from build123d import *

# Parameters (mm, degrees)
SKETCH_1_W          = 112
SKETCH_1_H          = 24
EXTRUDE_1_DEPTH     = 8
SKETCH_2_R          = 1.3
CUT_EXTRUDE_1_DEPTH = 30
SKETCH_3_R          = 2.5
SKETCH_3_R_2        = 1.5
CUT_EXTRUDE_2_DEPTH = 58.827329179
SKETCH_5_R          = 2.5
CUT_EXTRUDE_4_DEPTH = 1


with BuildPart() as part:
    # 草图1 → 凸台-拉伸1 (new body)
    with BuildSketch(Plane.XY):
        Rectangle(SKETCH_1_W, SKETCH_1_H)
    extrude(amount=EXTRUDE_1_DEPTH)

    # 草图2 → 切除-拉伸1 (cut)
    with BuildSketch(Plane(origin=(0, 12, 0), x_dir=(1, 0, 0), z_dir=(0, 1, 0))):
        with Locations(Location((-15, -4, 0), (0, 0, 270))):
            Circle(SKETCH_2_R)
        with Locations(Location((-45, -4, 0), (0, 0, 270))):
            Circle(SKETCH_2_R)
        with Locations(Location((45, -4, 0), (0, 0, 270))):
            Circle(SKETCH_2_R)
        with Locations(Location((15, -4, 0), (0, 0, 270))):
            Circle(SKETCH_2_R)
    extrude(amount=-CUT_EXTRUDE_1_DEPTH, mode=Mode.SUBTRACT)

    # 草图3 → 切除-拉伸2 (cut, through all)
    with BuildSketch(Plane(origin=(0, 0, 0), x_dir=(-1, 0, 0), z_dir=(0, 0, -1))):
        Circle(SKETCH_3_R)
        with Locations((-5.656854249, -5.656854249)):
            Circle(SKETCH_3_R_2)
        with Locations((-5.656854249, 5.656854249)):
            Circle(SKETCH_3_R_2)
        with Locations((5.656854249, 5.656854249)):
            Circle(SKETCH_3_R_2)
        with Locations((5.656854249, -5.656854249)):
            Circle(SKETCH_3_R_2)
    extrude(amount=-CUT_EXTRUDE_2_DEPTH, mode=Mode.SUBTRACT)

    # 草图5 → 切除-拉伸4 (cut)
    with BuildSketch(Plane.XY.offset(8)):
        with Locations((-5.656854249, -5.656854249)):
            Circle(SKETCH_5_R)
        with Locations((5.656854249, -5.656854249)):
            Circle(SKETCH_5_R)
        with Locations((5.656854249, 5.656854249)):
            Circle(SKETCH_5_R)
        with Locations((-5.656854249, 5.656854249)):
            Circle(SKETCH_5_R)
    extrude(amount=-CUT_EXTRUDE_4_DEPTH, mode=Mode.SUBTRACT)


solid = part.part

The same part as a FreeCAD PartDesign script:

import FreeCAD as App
import Part
import Sketcher

V = App.Vector
Q = App.Units.Quantity


def add_polygon(sketch, points):
    """Adds a closed chain of lines whose ends are joined by coincident constraints."""
    first, n = sketch.GeometryCount, len(points)
    for a, b in zip(points, points[1:] + points[:1]):
        sketch.addGeometry(Part.LineSegment(App.Vector(*a, 0), App.Vector(*b, 0)), False)
    for i in range(n):
        sketch.addConstraint(Sketcher.Constraint("Coincident", first + i, 2, first + (i + 1) % n, 1))

doc = App.newDocument("Part")
params = doc.addObject("Spreadsheet::Sheet", "Params")
for row, (alias, value) in enumerate([
    ("sketch1_width", "112 mm"),
    ("sketch1_height", "24 mm"),
    ("pad1_length", "8 mm"),
    ("sketch2_diameter", "2.6 mm"),
    ("pocket1_length", "30 mm"),
    ("sketch3_diameter", "5 mm"),
    ("sketch3_diameter2", "3 mm"),
    ("sketch4_diameter", "5 mm"),
    ("pocket3_length", "1 mm"),
], start=1):
    params.set(f"A{row}", alias)
    params.set(f"B{row}", "=" + value)
    params.setAlias(f"B{row}", alias)

body = doc.addObject("PartDesign::Body", "Body")

sketch1 = doc.addObject("Sketcher::SketchObject", "Sketch")
body.addObject(sketch1)
sketch1.AttachmentSupport = (doc.XY_Plane, [""])
sketch1.MapMode = "FlatFace"
add_polygon(sketch1, [(-56, 12), (-56, -12), (56, -12), (56, 12)])
sketch1.addConstraint(Sketcher.Constraint("Vertical", 0))
sketch1.addConstraint(Sketcher.Constraint("Horizontal", 1))
sketch1.addConstraint(Sketcher.Constraint("Vertical", 2))
sketch1.addConstraint(Sketcher.Constraint("Horizontal", 3))
sketch1.addConstraint(Sketcher.Constraint("Symmetric", 0, 2, 2, 2, -1, 1))
sketch1.addConstraint(Sketcher.Constraint("DistanceX", 1, 1, 1, 2, Q("112 mm")))
sketch1.addConstraint(Sketcher.Constraint("DistanceY", 0, 2, 0, 1, Q("24 mm")))
sketch1.setExpression("Constraints[9]", "Params.sketch1_width")
sketch1.setExpression("Constraints[10]", "Params.sketch1_height")
pad1 = doc.addObject("PartDesign::Pad", "Pad")
body.addObject(pad1)
pad1.Profile = sketch1
pad1.setExpression("Length", "Params.pad1_length")

sketch2 = doc.addObject("Sketcher::SketchObject", "Sketch001")
body.addObject(sketch2)
sketch2.AttachmentSupport = (doc.XZ_Plane, [""])
sketch2.MapMode = "FlatFace"
sketch2.AttachmentOffset = App.Placement(V(0, 0, -12), App.Rotation())
sketch2.addGeometry(Part.Circle(V(-15, 4, 0), V(0, 0, 1), 1.3), False)
sketch2.addGeometry(Part.Circle(V(-45, 4, 0), V(0, 0, 1), 1.3), False)
sketch2.addGeometry(Part.Circle(V(45, 4, 0), V(0, 0, 1), 1.3), False)
sketch2.addGeometry(Part.Circle(V(15, 4, 0), V(0, 0, 1), 1.3), False)
sketch2.addConstraint(Sketcher.Constraint("Equal", 0, 1))
sketch2.addConstraint(Sketcher.Constraint("Equal", 1, 2))
sketch2.addConstraint(Sketcher.Constraint("Equal", 2, 3))
sketch2.addConstraint(Sketcher.Constraint("Symmetric", 1, 3, 2, 3, -2))
sketch2.addConstraint(Sketcher.Constraint("Symmetric", 0, 3, 3, 3, -2))
sketch2.addConstraint(Sketcher.Constraint("Horizontal", 0, 3, 1, 3))
sketch2.addConstraint(Sketcher.Constraint("Diameter", 0, Q("2.6 mm")))
sketch2.addConstraint(Sketcher.Constraint("DistanceX", 0, 3, -1, 1, Q("15 mm")))
sketch2.addConstraint(Sketcher.Constraint("DistanceY", -1, 1, 0, 3, Q("4 mm")))
sketch2.addConstraint(Sketcher.Constraint("DistanceX", 1, 3, -1, 1, Q("45 mm")))
sketch2.setExpression("Constraints[6]", "Params.sketch2_diameter")
pocket1 = doc.addObject("PartDesign::Pocket", "Pocket")
body.addObject(pocket1)
pocket1.Profile = sketch2
pocket1.setExpression("Length", "Params.pocket1_length")
pocket1.Reversed = True

sketch3 = doc.addObject("Sketcher::SketchObject", "Sketch002")
body.addObject(sketch3)
sketch3.AttachmentSupport = (doc.XY_Plane, [""])
sketch3.MapMode = "FlatFace"
sketch3.addGeometry(Part.Circle(V(0, 0, 0), V(0, 0, 1), 2.5), False)
sketch3.addGeometry(Part.Circle(V(5.7, -5.7, 0), V(0, 0, 1), 1.5), False)
sketch3.addGeometry(Part.Circle(V(5.7, 5.7, 0), V(0, 0, 1), 1.5), False)
sketch3.addGeometry(Part.Circle(V(-5.7, 5.7, 0), V(0, 0, 1), 1.5), False)
sketch3.addGeometry(Part.Circle(V(-5.7, -5.7, 0), V(0, 0, 1), 1.5), False)
sketch3.addConstraint(Sketcher.Constraint("Coincident", 0, 3, -1, 1))
sketch3.addConstraint(Sketcher.Constraint("Equal", 1, 2))
sketch3.addConstraint(Sketcher.Constraint("Equal", 2, 3))
sketch3.addConstraint(Sketcher.Constraint("Equal", 3, 4))
sketch3.addConstraint(Sketcher.Constraint("Symmetric", 1, 3, 3, 3, -1, 1))
sketch3.addConstraint(Sketcher.Constraint("Symmetric", 2, 3, 4, 3, -1, 1))
sketch3.addConstraint(Sketcher.Constraint("Symmetric", 2, 3, 3, 3, -2))
sketch3.addConstraint(Sketcher.Constraint("Diameter", 0, Q("5 mm")))
sketch3.addConstraint(Sketcher.Constraint("Diameter", 1, Q("3 mm")))
sketch3.addConstraint(Sketcher.Constraint("DistanceY", 1, 3, 2, 3, Q("11.313708 mm")))
sketch3.addConstraint(Sketcher.Constraint("DistanceX", 3, 3, 2, 3, Q("11.313708 mm")))
sketch3.setExpression("Constraints[7]", "Params.sketch3_diameter")
sketch3.setExpression("Constraints[8]", "Params.sketch3_diameter2")
pocket2 = doc.addObject("PartDesign::Pocket", "Pocket001")
body.addObject(pocket2)
pocket2.Profile = sketch3
pocket2.Type = "ThroughAll"
pocket2.Reversed = True

sketch4 = doc.addObject("Sketcher::SketchObject", "Sketch003")
body.addObject(sketch4)
sketch4.AttachmentSupport = (doc.XY_Plane, [""])
sketch4.MapMode = "FlatFace"
sketch4.AttachmentOffset = App.Placement(V(0, 0, 8), App.Rotation())
sketch4.addGeometry(Part.Circle(V(-5.7, -5.7, 0), V(0, 0, 1), 2.5), False)
sketch4.addGeometry(Part.Circle(V(5.7, -5.7, 0), V(0, 0, 1), 2.5), False)
sketch4.addGeometry(Part.Circle(V(5.7, 5.7, 0), V(0, 0, 1), 2.5), False)
sketch4.addGeometry(Part.Circle(V(-5.7, 5.7, 0), V(0, 0, 1), 2.5), False)
sketch4.addConstraint(Sketcher.Constraint("Equal", 0, 1))
sketch4.addConstraint(Sketcher.Constraint("Equal", 1, 2))
sketch4.addConstraint(Sketcher.Constraint("Equal", 2, 3))
sketch4.addConstraint(Sketcher.Constraint("Symmetric", 0, 3, 2, 3, -1, 1))
sketch4.addConstraint(Sketcher.Constraint("Symmetric", 1, 3, 3, 3, -1, 1))
sketch4.addConstraint(Sketcher.Constraint("Symmetric", 0, 3, 1, 3, -2))
sketch4.addConstraint(Sketcher.Constraint("Diameter", 0, Q("5 mm")))
sketch4.addConstraint(Sketcher.Constraint("DistanceX", 0, 3, 1, 3, Q("11.313708 mm")))
sketch4.addConstraint(Sketcher.Constraint("DistanceY", 1, 3, 2, 3, Q("11.313708 mm")))
sketch4.setExpression("Constraints[6]", "Params.sketch4_diameter")
pocket3 = doc.addObject("PartDesign::Pocket", "Pocket002")
body.addObject(pocket3)
pocket3.Profile = sketch4
pocket3.setExpression("Length", "Params.pocket3_length")

doc.recompute()
